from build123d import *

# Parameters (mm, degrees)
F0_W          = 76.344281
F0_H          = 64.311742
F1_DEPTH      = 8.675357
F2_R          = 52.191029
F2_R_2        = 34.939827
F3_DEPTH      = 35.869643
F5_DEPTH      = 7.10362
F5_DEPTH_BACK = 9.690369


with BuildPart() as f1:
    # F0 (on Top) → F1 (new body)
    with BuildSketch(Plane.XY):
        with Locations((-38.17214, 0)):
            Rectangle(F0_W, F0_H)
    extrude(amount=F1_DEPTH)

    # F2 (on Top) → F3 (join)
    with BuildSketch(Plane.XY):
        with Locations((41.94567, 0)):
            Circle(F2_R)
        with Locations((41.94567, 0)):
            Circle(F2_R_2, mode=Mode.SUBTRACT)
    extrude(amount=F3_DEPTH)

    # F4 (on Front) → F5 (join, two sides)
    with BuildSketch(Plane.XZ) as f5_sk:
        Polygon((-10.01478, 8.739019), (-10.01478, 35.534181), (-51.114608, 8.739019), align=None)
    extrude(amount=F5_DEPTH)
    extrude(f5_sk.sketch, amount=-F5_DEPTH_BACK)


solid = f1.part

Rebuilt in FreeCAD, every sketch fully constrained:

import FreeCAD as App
import Part
import Sketcher

V = App.Vector

doc = App.newDocument("Part")
params = doc.addObject("Spreadsheet::Sheet", "Params")
for row, (alias, value) in enumerate([
    ("pad1_length", "8.675357 mm"),
    ("pad2_length", "35.869643 mm"),
    ("pad3_length", "7.10362 mm"),
    ("pad3_length2", "9.690369 mm"),
], start=1):
    params.set(f"A{row}", alias)
    params.set(f"B{row}", "=" + value)
    params.setAlias(f"B{row}", alias)

body = doc.addObject("PartDesign::Body", "Body")

sketch1 = doc.addObject("Sketcher::SketchObject", "Sketch")
body.addObject(sketch1)
sketch1.AttachmentSupport = (doc.XY_Plane, [""])
sketch1.MapMode = "FlatFace"
sketch1.addGeometry([
    Part.LineSegment(V(-76, 32, 0), V(-76, -32, 0)),
    Part.LineSegment(V(-76, -32, 0), V(0, -32, 0)),
    Part.LineSegment(V(0, -32, 0), V(0, 32, 0)),
    Part.LineSegment(V(0, 32, 0), V(-76, 32, 0)),
], False)
sketch1.addConstraint([
    Sketcher.Constraint("Coincident", 0, 2, 1, 1),
    Sketcher.Constraint("Coincident", 1, 2, 2, 1),
    Sketcher.Constraint("Coincident", 2, 2, 3, 1),
    Sketcher.Constraint("Coincident", 3, 2, 0, 1),
    Sketcher.Constraint("Vertical", 0),
    Sketcher.Constraint("Horizontal", 1),
    Sketcher.Constraint("Vertical", 2),
    Sketcher.Constraint("Horizontal", 3),
    Sketcher.Constraint("Symmetric", 1, 2, 2, 2, -1, 1),
    Sketcher.Constraint("DistanceX", 1, 1, 1, 2, 76.344281),
    Sketcher.Constraint("DistanceY", 0, 2, 0, 1, 64.311742),
])
pad1 = doc.addObject("PartDesign::Pad", "Pad")
body.addObject(pad1)
pad1.Profile = sketch1
pad1.setExpression("Length", "Params.pad1_length")

sketch2 = doc.addObject("Sketcher::SketchObject", "Sketch001")
body.addObject(sketch2)
sketch2.AttachmentSupport = (doc.XY_Plane, [""])
sketch2.MapMode = "FlatFace"
sketch2.addGeometry([
    Part.Circle(V(42, 0, 0), V(0, 0, 1), 52),
    Part.Circle(V(42, 0, 0), V(0, 0, 1), 35),
], False)
sketch2.addConstraint([
    Sketcher.Constraint("Coincident", 1, 3, 0, 3),
    Sketcher.Constraint("PointOnObject", 0, 3, -1),
    Sketcher.Constraint("Diameter", 0, 104.382058),
    Sketcher.Constraint("Diameter", 1, 69.879654),
    Sketcher.Constraint("DistanceX", -1, 1, 0, 3, 41.94567),
])
pad2 = doc.addObject("PartDesign::Pad", "Pad001")
body.addObject(pad2)
pad2.Profile = sketch2
pad2.setExpression("Length", "Params.pad2_length")

sketch3 = doc.addObject("Sketcher::SketchObject", "Sketch002")
body.addObject(sketch3)
sketch3.AttachmentSupport = (doc.XZ_Plane, [""])
sketch3.MapMode = "FlatFace"
sketch3.addGeometry([
    Part.LineSegment(V(-10, 9, 0), V(-10, 36, 0)),
    Part.LineSegment(V(-10, 36, 0), V(-51, 9, 0)),
    Part.LineSegment(V(-51, 9, 0), V(-10, 9, 0)),
], False)
sketch3.addConstraint([
    Sketcher.Constraint("Coincident", 0, 2, 1, 1),
    Sketcher.Constraint("Coincident", 1, 2, 2, 1),
    Sketcher.Constraint("Coincident", 2, 2, 0, 1),
    Sketcher.Constraint("Vertical", 0),
    Sketcher.Constraint("Horizontal", 2),
    Sketcher.Constraint("DistanceY", 0, 1, 0, 2, 26.795162),
    Sketcher.Constraint("DistanceX", 2, 1, 2, 2, 41.099828),
    Sketcher.Constraint("DistanceX", 0, 2, -1, 1, 10.01478),
    Sketcher.Constraint("DistanceY", -1, 1, 0, 2, 35.534181),
])
pad3 = doc.addObject("PartDesign::Pad", "Pad002")
body.addObject(pad3)
pad3.Profile = sketch3
pad3.Type = "TwoLengths"
pad3.setExpression("Length", "Params.pad3_length")
pad3.setExpression("Length2", "Params.pad3_length2")

doc.recompute()
